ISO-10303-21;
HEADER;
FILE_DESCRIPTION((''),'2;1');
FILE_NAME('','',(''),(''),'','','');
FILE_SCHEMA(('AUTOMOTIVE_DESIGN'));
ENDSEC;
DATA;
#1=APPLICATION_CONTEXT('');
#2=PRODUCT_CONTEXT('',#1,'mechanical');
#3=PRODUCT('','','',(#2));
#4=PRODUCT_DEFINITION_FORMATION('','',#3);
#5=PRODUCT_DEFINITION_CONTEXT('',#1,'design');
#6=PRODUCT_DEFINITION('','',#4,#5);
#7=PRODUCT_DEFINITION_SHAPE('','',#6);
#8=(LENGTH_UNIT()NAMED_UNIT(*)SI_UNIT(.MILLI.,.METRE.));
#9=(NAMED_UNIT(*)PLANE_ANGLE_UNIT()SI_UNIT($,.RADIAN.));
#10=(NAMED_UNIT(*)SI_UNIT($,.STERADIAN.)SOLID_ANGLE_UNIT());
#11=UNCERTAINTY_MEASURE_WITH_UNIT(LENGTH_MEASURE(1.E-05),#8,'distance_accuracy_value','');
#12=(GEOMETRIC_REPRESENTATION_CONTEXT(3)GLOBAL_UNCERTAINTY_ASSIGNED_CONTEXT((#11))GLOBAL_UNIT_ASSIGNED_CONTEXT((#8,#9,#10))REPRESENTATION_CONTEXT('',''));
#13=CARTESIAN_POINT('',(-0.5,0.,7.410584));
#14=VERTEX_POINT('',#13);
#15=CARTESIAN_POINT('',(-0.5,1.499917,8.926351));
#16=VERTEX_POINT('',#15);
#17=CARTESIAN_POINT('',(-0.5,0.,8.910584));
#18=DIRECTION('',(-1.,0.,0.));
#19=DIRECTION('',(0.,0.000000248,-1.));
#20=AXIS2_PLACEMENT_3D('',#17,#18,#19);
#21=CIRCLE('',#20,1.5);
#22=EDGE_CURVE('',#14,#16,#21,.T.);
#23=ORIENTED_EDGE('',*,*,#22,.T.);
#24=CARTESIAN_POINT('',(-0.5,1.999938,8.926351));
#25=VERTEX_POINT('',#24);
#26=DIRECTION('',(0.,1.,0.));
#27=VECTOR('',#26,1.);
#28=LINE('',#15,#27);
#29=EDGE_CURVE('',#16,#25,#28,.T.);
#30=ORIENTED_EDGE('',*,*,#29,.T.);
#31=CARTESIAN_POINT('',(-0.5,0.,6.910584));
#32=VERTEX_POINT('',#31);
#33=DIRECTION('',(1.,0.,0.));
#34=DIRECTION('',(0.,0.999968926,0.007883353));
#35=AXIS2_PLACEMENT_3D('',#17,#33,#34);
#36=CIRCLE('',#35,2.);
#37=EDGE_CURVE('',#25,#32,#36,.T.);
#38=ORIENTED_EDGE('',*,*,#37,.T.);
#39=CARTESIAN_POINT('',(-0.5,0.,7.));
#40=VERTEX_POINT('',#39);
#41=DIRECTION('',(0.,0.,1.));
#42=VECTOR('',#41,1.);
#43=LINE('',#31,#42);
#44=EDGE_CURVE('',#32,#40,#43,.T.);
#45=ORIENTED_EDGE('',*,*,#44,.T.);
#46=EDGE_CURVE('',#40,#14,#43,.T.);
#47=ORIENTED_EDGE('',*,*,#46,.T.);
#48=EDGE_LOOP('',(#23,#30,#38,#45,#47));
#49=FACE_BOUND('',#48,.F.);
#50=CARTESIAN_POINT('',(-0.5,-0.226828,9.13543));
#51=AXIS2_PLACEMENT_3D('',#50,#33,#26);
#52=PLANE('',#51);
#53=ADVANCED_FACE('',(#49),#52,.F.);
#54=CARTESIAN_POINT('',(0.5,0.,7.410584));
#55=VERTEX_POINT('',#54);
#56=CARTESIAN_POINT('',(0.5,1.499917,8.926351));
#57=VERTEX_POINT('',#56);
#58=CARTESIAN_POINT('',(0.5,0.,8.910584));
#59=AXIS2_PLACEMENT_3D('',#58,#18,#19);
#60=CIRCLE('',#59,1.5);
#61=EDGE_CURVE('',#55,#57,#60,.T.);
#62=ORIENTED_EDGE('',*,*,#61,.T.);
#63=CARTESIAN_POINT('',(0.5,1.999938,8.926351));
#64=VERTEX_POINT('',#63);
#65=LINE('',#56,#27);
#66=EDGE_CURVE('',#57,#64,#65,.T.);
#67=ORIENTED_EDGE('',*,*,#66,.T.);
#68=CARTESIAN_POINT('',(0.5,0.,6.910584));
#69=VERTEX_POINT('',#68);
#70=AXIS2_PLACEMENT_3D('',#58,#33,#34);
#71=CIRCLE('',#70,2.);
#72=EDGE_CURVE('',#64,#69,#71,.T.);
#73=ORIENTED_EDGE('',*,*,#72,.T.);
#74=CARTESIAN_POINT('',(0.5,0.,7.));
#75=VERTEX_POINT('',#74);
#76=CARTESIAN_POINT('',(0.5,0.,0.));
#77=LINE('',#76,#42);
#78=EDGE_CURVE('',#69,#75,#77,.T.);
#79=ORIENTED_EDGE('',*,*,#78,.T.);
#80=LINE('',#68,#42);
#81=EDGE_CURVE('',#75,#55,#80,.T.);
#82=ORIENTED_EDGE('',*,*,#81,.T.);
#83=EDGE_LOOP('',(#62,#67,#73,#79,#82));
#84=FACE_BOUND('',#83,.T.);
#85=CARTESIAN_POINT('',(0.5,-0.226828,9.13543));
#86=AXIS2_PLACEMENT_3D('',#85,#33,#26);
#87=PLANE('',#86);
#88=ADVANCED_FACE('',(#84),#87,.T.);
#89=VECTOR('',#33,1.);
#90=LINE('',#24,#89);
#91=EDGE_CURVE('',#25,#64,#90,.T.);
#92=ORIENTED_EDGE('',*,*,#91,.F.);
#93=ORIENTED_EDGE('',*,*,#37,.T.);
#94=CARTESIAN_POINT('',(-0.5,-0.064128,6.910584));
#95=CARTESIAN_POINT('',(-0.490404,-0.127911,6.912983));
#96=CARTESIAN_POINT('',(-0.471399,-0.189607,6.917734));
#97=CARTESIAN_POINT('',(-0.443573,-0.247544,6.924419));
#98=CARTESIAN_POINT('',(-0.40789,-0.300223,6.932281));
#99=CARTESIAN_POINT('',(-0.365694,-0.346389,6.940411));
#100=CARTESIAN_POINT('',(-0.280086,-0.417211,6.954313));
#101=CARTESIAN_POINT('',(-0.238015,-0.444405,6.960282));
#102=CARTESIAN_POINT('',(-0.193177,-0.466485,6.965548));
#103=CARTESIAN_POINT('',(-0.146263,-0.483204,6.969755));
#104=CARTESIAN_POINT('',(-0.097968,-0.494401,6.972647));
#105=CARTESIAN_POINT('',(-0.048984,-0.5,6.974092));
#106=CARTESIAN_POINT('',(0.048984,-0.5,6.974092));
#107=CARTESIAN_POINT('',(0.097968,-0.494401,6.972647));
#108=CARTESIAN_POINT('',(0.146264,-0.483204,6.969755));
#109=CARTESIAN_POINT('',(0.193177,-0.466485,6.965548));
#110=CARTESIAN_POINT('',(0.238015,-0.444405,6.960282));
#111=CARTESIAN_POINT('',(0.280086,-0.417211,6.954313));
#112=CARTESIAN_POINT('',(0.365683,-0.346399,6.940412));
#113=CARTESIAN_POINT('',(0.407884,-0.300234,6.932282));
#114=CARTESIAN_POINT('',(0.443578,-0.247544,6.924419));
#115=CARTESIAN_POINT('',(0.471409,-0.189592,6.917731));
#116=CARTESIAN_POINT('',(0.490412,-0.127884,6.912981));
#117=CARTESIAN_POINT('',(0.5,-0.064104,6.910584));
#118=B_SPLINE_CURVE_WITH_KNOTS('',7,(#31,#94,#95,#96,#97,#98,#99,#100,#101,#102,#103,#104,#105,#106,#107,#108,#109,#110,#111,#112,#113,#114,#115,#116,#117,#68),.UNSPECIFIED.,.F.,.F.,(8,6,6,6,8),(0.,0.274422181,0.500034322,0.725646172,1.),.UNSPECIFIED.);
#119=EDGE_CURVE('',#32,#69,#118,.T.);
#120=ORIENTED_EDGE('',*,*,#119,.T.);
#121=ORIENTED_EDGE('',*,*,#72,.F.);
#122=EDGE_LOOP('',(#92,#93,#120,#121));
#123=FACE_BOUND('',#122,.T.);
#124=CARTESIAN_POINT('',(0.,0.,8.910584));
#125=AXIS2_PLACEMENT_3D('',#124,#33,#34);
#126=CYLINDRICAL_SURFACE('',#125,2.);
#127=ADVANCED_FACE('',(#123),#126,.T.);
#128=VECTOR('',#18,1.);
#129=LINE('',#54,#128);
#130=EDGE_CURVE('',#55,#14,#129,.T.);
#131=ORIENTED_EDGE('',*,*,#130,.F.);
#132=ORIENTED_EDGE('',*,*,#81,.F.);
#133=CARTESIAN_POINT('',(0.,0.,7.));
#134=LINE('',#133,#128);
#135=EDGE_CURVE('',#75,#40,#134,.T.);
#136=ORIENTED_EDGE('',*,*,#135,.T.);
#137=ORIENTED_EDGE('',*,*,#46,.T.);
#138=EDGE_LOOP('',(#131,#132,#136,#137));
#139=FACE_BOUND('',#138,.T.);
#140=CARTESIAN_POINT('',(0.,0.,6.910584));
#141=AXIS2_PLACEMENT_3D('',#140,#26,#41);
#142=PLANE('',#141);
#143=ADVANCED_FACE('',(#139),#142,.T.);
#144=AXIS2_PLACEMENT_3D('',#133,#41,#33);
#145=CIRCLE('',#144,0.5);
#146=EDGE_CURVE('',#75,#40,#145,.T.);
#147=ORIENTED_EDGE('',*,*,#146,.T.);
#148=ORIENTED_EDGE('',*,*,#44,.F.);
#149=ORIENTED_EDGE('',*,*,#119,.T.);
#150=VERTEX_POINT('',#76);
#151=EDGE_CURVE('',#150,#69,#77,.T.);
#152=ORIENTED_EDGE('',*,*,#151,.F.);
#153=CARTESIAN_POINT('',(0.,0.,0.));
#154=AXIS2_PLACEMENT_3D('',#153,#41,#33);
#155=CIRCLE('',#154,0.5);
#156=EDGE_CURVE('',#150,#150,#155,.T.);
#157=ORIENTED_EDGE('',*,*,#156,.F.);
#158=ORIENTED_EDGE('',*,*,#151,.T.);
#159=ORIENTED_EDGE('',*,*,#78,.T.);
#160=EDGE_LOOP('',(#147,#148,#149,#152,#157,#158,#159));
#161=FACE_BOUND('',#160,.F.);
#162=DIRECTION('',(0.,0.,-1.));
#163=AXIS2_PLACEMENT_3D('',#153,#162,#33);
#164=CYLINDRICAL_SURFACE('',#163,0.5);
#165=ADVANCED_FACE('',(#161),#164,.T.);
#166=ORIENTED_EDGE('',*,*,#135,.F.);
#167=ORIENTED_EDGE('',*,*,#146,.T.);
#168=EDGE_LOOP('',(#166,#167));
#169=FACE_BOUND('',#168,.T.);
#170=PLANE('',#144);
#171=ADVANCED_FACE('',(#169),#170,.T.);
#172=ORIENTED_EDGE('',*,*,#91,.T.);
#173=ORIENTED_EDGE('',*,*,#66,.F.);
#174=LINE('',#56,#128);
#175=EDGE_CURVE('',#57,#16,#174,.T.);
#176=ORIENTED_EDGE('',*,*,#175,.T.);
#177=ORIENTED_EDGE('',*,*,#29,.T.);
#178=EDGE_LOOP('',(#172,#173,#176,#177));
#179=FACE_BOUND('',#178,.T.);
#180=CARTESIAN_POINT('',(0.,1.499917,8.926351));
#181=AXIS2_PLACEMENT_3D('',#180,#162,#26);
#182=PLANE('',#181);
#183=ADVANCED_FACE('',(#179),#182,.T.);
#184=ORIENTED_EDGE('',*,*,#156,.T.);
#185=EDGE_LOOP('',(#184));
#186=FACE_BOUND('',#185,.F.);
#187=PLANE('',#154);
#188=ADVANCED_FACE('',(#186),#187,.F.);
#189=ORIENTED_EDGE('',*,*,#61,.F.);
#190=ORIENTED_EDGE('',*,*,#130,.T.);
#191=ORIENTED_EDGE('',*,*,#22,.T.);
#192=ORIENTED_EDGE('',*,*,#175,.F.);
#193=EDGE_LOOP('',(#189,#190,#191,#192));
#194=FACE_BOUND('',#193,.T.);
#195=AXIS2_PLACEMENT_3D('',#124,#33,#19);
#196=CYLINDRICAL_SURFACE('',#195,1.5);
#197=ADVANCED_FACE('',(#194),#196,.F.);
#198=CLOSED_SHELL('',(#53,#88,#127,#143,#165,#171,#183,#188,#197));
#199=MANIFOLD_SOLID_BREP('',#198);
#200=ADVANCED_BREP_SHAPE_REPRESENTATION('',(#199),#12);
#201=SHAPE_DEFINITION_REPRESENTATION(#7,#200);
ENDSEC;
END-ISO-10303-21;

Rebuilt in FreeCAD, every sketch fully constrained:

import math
import FreeCAD as App
import Part
import Sketcher

V = App.Vector
Q = App.Units.Quantity

doc = App.newDocument("Part")
body = doc.addObject("PartDesign::Body", "Body")

sketch1 = body.newObject("Sketcher::SketchObject", "Sketch")
sketch1.AttachmentSupport = (doc.getObject("XY_Plane"), [""])
sketch1.MapMode = "FlatFace"
sketch1.addGeometry(Part.Circle(V(0, 0, 0), V(0, 0, 1), 0.5), False)
sketch1.addConstraint(Sketcher.Constraint("Coincident", 0, 3, -1, 1))
sketch1.addConstraint(Sketcher.Constraint("Diameter", 0, Q("1 mm")))
pad1 = body.newObject("PartDesign::Pad", "Pad")
pad1.Profile = sketch1
pad1.Length = 7

sketch2 = body.newObject("Sketcher::SketchObject", "Sketch001")
sketch2.AttachmentSupport = (doc.getObject("YZ_Plane"), [""])
sketch2.MapMode = "FlatFace"
sketch2.addGeometry(Part.LineSegment(V(1.499917, 8.926351, 0), V(1.999938, 8.926351, 0)), False)
sketch2.addGeometry(Part.ArcOfCircle(Part.Circle(V(0, 8.910584, 0), V(0, 0, 1), 2), math.radians(0.451688), math.radians(270.000004)), False)
sketch2.addGeometry(Part.LineSegment(V(0, 6.910584, 0), V(0, 7.410584, 0)), False)
sketch2.addGeometry(Part.ArcOfCircle(Part.Circle(V(0, 8.910584, 0), V(0, 0, 1), 1.5), math.radians(0.602257), math.radians(270.000014)), False)
sketch2.addConstraint(Sketcher.Constraint("Coincident", 0, 2, 1, 1))
sketch2.addConstraint(Sketcher.Constraint("Coincident", 1, 2, 2, 1))
sketch2.addConstraint(Sketcher.Constraint("Coincident", 2, 2, 3, 2))
sketch2.addConstraint(Sketcher.Constraint("Coincident", 3, 1, 0, 1))
sketch2.addConstraint(Sketcher.Constraint("Horizontal", 0))
sketch2.addConstraint(Sketcher.Constraint("Vertical", 2))
sketch2.addConstraint(Sketcher.Constraint("Coincident", 3, 3, 1, 3))
sketch2.addConstraint(Sketcher.Constraint("PointOnObject", 1, 3, -2))
sketch2.addConstraint(Sketcher.Constraint("PointOnObject", 1, 2, -2))
sketch2.addConstraint(Sketcher.Constraint("Radius", 1, Q("2 mm")))
sketch2.addConstraint(Sketcher.Constraint("Radius", 3, Q("1.5 mm")))
sketch2.addConstraint(Sketcher.Constraint("DistanceY", -1, 1, 0, 2, Q("8.926351 mm")))
sketch2.addConstraint(Sketcher.Constraint("DistanceX", 1, 3, 0, 2, Q("1.999938 mm")))
pad2 = body.newObject("PartDesign::Pad", "Pad001")
pad2.Profile = sketch2
pad2.Length = 1
pad2.Midplane = True

doc.recompute()
